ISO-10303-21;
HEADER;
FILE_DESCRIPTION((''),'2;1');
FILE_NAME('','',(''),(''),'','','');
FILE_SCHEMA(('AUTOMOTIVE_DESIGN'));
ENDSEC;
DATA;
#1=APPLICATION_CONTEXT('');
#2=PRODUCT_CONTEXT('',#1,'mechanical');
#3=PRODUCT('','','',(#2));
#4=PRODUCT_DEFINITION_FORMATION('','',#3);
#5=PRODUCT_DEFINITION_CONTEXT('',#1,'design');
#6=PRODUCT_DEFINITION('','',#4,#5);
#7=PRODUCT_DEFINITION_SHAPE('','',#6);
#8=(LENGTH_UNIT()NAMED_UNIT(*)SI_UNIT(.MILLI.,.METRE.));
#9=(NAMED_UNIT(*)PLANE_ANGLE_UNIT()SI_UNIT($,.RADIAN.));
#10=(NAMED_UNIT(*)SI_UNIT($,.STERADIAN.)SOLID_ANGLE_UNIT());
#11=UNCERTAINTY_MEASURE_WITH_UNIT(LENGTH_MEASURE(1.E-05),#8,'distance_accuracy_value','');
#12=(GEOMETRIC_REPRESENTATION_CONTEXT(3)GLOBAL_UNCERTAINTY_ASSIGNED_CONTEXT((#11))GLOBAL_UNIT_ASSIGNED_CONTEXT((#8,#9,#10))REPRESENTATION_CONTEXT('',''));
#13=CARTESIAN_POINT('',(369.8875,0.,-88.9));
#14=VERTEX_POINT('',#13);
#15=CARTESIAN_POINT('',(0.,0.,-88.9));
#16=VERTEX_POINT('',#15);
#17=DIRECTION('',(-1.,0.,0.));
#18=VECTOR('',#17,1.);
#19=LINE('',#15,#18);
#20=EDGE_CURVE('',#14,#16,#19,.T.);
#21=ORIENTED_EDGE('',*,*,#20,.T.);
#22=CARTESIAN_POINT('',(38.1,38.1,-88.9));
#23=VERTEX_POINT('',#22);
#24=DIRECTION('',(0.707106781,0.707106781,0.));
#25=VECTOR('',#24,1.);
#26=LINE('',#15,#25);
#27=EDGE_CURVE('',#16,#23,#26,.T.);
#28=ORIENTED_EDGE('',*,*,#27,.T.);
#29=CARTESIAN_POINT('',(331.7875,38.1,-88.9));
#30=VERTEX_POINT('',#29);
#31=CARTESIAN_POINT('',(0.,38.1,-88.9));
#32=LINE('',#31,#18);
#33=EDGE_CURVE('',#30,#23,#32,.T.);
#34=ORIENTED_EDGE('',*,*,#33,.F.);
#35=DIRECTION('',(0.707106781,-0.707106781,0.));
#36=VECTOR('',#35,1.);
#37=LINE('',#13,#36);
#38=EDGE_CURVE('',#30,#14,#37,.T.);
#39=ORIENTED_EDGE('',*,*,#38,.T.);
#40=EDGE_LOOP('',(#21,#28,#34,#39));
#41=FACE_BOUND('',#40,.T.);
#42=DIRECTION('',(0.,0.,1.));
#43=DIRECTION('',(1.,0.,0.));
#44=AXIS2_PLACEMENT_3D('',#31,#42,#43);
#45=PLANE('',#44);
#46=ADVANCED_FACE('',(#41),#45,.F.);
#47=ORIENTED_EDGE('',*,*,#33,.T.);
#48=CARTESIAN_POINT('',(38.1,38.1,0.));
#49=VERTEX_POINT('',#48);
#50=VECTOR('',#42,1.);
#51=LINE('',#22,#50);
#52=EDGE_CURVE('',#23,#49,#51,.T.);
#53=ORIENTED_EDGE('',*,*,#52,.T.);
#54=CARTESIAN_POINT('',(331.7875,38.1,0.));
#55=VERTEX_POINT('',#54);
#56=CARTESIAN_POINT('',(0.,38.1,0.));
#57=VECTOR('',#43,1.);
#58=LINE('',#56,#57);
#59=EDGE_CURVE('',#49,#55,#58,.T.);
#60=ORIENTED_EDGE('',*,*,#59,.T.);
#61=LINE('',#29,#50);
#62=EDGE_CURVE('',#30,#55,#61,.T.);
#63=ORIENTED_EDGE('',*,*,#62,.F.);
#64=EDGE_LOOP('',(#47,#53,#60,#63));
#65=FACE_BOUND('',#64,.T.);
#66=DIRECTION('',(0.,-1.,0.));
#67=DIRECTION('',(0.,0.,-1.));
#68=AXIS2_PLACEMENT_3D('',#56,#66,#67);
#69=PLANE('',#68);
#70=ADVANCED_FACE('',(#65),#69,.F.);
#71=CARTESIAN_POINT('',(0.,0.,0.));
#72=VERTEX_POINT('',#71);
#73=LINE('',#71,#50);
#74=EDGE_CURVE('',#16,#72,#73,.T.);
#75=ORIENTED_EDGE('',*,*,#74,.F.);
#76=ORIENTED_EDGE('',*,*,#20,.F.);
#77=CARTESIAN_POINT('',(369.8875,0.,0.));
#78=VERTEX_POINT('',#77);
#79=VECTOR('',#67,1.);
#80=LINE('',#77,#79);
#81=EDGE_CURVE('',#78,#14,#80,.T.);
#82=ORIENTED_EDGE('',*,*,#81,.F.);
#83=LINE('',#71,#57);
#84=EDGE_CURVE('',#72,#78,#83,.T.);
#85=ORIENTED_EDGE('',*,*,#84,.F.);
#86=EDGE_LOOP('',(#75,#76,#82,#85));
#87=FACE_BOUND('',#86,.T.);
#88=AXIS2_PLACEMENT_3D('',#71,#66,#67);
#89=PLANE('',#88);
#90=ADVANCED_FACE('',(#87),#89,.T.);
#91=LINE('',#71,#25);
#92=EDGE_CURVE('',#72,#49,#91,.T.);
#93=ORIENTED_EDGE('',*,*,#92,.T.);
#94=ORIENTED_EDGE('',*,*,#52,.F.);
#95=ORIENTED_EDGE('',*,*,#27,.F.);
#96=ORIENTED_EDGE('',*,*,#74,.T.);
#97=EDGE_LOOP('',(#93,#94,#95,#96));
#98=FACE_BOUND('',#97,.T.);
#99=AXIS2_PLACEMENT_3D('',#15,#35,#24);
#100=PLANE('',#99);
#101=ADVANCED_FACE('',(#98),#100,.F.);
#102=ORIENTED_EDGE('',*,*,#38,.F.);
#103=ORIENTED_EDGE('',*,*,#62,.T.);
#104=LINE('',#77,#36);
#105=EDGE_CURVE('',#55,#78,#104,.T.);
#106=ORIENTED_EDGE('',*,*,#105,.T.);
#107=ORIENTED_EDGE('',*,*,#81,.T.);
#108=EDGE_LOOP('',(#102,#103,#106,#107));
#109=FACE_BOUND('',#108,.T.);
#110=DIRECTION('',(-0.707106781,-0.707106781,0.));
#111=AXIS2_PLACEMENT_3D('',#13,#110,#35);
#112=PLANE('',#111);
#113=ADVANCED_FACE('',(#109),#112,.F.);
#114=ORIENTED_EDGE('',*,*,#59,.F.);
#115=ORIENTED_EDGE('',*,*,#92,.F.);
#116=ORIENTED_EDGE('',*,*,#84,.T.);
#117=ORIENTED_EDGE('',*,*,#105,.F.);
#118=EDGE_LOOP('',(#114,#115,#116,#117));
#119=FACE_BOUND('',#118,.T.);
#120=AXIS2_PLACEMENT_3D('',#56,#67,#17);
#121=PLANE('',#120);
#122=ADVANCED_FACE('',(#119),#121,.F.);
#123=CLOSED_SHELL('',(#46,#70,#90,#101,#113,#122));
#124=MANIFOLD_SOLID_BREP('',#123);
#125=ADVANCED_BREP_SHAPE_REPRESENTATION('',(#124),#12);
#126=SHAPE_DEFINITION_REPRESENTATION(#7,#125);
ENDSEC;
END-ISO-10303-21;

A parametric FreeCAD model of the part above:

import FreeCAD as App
import Part
import Sketcher

V = App.Vector
Q = App.Units.Quantity


def add_polygon(sketch, points):
    """Adds a closed chain of lines whose ends are joined by coincident constraints."""
    first, n = sketch.GeometryCount, len(points)
    for a, b in zip(points, points[1:] + points[:1]):
        sketch.addGeometry(Part.LineSegment(App.Vector(*a, 0), App.Vector(*b, 0)), False)
    for i in range(n):
        sketch.addConstraint(Sketcher.Constraint("Coincident", first + i, 2, first + (i + 1) % n, 1))

doc = App.newDocument("Part")
body = doc.addObject("PartDesign::Body", "Body")

# Sketch on XZ plane
sketch1 = body.newObject("Sketcher::SketchObject", "Sketch")
sketch1.AttachmentSupport = (doc.getObject("XZ_Plane"), [""])
sketch1.MapMode = "FlatFace"
add_polygon(sketch1, [(0, -89), (0, 0), (370, 0), (370, -89)])  # lines 0-3
sketch1.addConstraint([
    Sketcher.Constraint("Vertical", 0),
    Sketcher.Constraint("Horizontal", 1),
    Sketcher.Constraint("Vertical", 2),
    Sketcher.Constraint("Horizontal", 3),
    Sketcher.Constraint("Coincident", 0, 2, -1, 1),
    Sketcher.Constraint("DistanceY", 0, 1, 0, 2, Q("3.5 in")),
    Sketcher.Constraint("DistanceX", 1, 1, 1, 2, Q("14.5625 in")),
])
pad1 = body.newObject("PartDesign::Pad", "Pad")
pad1.Profile = sketch1
pad1.Length = Q("1.5 in")
pad1.Reversed = True

# Sketch on XY plane
sketch2 = body.newObject("Sketcher::SketchObject", "Sketch001")
sketch2.AttachmentSupport = (doc.getObject("XY_Plane"), [""])
sketch2.MapMode = "FlatFace"
add_polygon(sketch2, [(0, 0), (38, 38), (0, 38)])  # lines 0-2
add_polygon(sketch2, [(332, 38), (370, 0), (370, 38)])  # lines 3-5
sketch2.addConstraint([
    Sketcher.Constraint("Horizontal", 1),
    Sketcher.Constraint("Vertical", 2),
    Sketcher.Constraint("Vertical", 4),
    Sketcher.Constraint("Horizontal", 5),
    Sketcher.Constraint("Coincident", 2, 2, -1, 1),
    Sketcher.Constraint("PointOnObject", 3, 2, -1),
    Sketcher.Constraint("Perpendicular", 0, 3),
    Sketcher.Constraint("Horizontal", 1, 2, 4, 2),
    Sketcher.Constraint("Equal", 1, 5),
    Sketcher.Constraint("DistanceX", 1, 2, 1, 1, Q("1.5 in")),
    Sketcher.Constraint("DistanceX", -1, 1, 3, 2, Q("14.5625 in")),
])
pocket1 = body.newObject("PartDesign::Pocket", "Pocket")
pocket1.Profile = sketch2
pocket1.Type = "ThroughAll"

doc.recompute()
